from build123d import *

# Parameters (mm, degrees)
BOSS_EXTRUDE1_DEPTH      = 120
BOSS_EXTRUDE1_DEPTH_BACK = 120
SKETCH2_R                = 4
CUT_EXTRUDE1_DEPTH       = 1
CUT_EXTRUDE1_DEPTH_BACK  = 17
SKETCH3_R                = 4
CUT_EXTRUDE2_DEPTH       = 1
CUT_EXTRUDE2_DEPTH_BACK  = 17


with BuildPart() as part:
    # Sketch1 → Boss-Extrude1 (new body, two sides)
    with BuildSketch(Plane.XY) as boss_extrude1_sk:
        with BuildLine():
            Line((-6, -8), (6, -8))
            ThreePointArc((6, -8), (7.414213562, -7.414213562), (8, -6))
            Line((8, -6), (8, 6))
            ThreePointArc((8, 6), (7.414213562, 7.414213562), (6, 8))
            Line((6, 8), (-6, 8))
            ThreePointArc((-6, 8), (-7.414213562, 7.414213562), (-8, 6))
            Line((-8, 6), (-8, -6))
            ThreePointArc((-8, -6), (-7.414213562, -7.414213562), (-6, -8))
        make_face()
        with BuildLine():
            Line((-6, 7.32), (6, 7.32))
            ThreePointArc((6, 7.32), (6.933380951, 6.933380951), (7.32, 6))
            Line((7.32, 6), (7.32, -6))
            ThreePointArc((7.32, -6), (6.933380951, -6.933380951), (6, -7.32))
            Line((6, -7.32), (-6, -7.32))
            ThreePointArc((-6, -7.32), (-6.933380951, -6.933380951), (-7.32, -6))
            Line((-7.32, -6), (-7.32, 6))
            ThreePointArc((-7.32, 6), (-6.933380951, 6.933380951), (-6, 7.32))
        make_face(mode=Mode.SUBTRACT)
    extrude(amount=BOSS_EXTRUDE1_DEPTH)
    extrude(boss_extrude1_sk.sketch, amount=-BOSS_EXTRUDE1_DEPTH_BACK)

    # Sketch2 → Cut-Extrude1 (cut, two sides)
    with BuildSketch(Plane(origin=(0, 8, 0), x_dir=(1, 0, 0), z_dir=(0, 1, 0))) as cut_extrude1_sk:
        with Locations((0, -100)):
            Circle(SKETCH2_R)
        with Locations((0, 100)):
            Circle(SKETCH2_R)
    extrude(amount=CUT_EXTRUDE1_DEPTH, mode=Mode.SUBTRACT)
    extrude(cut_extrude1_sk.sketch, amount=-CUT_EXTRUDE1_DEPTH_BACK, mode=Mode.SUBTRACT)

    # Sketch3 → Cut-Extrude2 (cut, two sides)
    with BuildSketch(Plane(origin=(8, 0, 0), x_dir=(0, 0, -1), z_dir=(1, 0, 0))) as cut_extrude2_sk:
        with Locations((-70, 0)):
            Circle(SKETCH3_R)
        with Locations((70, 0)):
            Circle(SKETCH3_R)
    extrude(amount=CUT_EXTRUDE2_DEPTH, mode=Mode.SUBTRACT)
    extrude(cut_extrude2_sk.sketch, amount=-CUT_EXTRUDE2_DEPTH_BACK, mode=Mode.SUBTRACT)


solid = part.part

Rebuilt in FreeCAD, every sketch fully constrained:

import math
import FreeCAD as App
import Part
import Sketcher

doc = App.newDocument("Part")
body = doc.addObject("PartDesign::Body", "Body")

# Sketch on XY plane
sketch1 = body.newObject("Sketcher::SketchObject", "Sketch")
sketch1.AttachmentSupport = (doc.getObject("XY_Plane"), [""])
sketch1.MapMode = "FlatFace"
sketch1.addGeometry(Part.LineSegment(App.Vector(-6, -8, 0), App.Vector(6, -8, 0)), False)
sketch1.addGeometry(Part.ArcOfCircle(Part.Circle(App.Vector(6, -6, 0), App.Vector(0, 0, 1), 2), math.radians(-90), math.radians(0)), False)
sketch1.addGeometry(Part.LineSegment(App.Vector(8, -6, 0), App.Vector(8, 6, 0)), False)
sketch1.addGeometry(Part.ArcOfCircle(Part.Circle(App.Vector(6, 6, 0), App.Vector(0, 0, 1), 2), math.radians(0), math.radians(90)), False)
sketch1.addGeometry(Part.LineSegment(App.Vector(6, 8, 0), App.Vector(-6, 8, 0)), False)
sketch1.addGeometry(Part.ArcOfCircle(Part.Circle(App.Vector(-6, 6, 0), App.Vector(0, 0, 1), 2), math.radians(90), math.radians(180)), False)
sketch1.addGeometry(Part.LineSegment(App.Vector(-8, 6, 0), App.Vector(-8, -6, 0)), False)
sketch1.addGeometry(Part.ArcOfCircle(Part.Circle(App.Vector(-6, -6, 0), App.Vector(0, 0, 1), 2), math.radians(-180), math.radians(-90)), False)
sketch1.addGeometry(Part.ArcOfCircle(Part.Circle(App.Vector(-6, 6, 0), App.Vector(0, 0, 1), 1.32), math.radians(90), math.radians(180)), False)
sketch1.addGeometry(Part.LineSegment(App.Vector(-6, 7.32, 0), App.Vector(6, 7.32, 0)), False)
sketch1.addGeometry(Part.ArcOfCircle(Part.Circle(App.Vector(6, 6, 0), App.Vector(0, 0, 1), 1.32), math.radians(0), math.radians(90)), False)
sketch1.addGeometry(Part.LineSegment(App.Vector(7.32, 6, 0), App.Vector(7.32, -6, 0)), False)
sketch1.addGeometry(Part.ArcOfCircle(Part.Circle(App.Vector(6, -6, 0), App.Vector(0, 0, 1), 1.32), math.radians(-90), math.radians(0)), False)
sketch1.addGeometry(Part.LineSegment(App.Vector(6, -7.32, 0), App.Vector(-6, -7.32, 0)), False)
sketch1.addGeometry(Part.ArcOfCircle(Part.Circle(App.Vector(-6, -6, 0), App.Vector(0, 0, 1), 1.32), math.radians(-180), math.radians(-90)), False)
sketch1.addGeometry(Part.LineSegment(App.Vector(-7.32, -6, 0), App.Vector(-7.32, 6, 0)), False)
sketch1.addConstraint(Sketcher.Constraint("Tangent", 0, 2, 1, 1))
sketch1.addConstraint(Sketcher.Constraint("Tangent", 1, 2, 2, 1))
sketch1.addConstraint(Sketcher.Constraint("Tangent", 2, 2, 3, 1))
sketch1.addConstraint(Sketcher.Constraint("Tangent", 3, 2, 4, 1))
sketch1.addConstraint(Sketcher.Constraint("Tangent", 4, 2, 5, 1))
sketch1.addConstraint(Sketcher.Constraint("Tangent", 5, 2, 6, 1))
sketch1.addConstraint(Sketcher.Constraint("Tangent", 6, 2, 7, 1))
sketch1.addConstraint(Sketcher.Constraint("Tangent", 7, 2, 0, 1))
sketch1.addConstraint(Sketcher.Constraint("Tangent", 8, 1, 9, 1))
sketch1.addConstraint(Sketcher.Constraint("Tangent", 9, 2, 10, 2))
sketch1.addConstraint(Sketcher.Constraint("Tangent", 10, 1, 11, 1))
sketch1.addConstraint(Sketcher.Constraint("Tangent", 11, 2, 12, 2))
sketch1.addConstraint(Sketcher.Constraint("Tangent", 12, 1, 13, 1))
sketch1.addConstraint(Sketcher.Constraint("Tangent", 13, 2, 14, 2))
sketch1.addConstraint(Sketcher.Constraint("Tangent", 14, 1, 15, 1))
sketch1.addConstraint(Sketcher.Constraint("Tangent", 15, 2, 8, 2))
sketch1.addConstraint(Sketcher.Constraint("Horizontal", 0))
sketch1.addConstraint(Sketcher.Constraint("Vertical", 2))
sketch1.addConstraint(Sketcher.Constraint("Horizontal", 4))
sketch1.addConstraint(Sketcher.Constraint("Vertical", 6))
sketch1.addConstraint(Sketcher.Constraint("Horizontal", 9))
sketch1.addConstraint(Sketcher.Constraint("Vertical", 11))
sketch1.addConstraint(Sketcher.Constraint("Horizontal", 13))
sketch1.addConstraint(Sketcher.Constraint("Vertical", 15))
sketch1.addConstraint(Sketcher.Constraint("Coincident", 8, 3, 5, 3))
sketch1.addConstraint(Sketcher.Constraint("Coincident", 10, 3, 3, 3))
sketch1.addConstraint(Sketcher.Constraint("Coincident", 12, 3, 1, 3))
sketch1.addConstraint(Sketcher.Constraint("Equal", 1, 3))
sketch1.addConstraint(Sketcher.Constraint("Equal", 3, 5))
sketch1.addConstraint(Sketcher.Constraint("Equal", 5, 7))
sketch1.addConstraint(Sketcher.Constraint("Equal", 12, 14))
sketch1.addConstraint(Sketcher.Constraint("Symmetric", 1, 3, 5, 3, -1, 1))
sketch1.addConstraint(Sketcher.Constraint("Equal", 13, 2))
sketch1.addConstraint(Sketcher.Constraint("Radius", 1, 2.0))
sketch1.addConstraint(Sketcher.Constraint("DistanceX", 0, 1, 0, 2, 12.0))
sketch1.addConstraint(Sketcher.Constraint("Radius", 8, 1.32))
pad1 = body.newObject("PartDesign::Pad", "Pad")
pad1.Profile = sketch1
pad1.Type = "TwoLengths"
pad1.Length = 120
pad1.Length2 = 120

# Sketch on XZ plane
sketch2 = body.newObject("Sketcher::SketchObject", "Sketch001")
sketch2.AttachmentSupport = (doc.getObject("XZ_Plane"), [""])
sketch2.MapMode = "FlatFace"
sketch2.AttachmentOffset = App.Placement(App.Vector(0, 0, -8), App.Rotation())
sketch2.addGeometry(Part.Circle(App.Vector(0, 100, 0), App.Vector(0, 0, 1), 4), False)
sketch2.addGeometry(Part.Circle(App.Vector(0, -100, 0), App.Vector(0, 0, 1), 4), False)
sketch2.addConstraint(Sketcher.Constraint("Equal", 0, 1))
sketch2.addConstraint(Sketcher.Constraint("Symmetric", 0, 3, 1, 3, -1, 1))
sketch2.addConstraint(Sketcher.Constraint("PointOnObject", 0, 3, -2))
sketch2.addConstraint(Sketcher.Constraint("Diameter", 0, 8.0))
sketch2.addConstraint(Sketcher.Constraint("DistanceY", -1, 1, 0, 3, 100.0))
pocket1 = body.newObject("PartDesign::Pocket", "Pocket")
pocket1.Profile = sketch2
pocket1.Type = "ThroughAll"
pocket1.Midplane = True

# Sketch on YZ plane
sketch3 = body.newObject("Sketcher::SketchObject", "Sketch002")
sketch3.AttachmentSupport = (doc.getObject("YZ_Plane"), [""])
sketch3.MapMode = "FlatFace"
sketch3.AttachmentOffset = App.Placement(App.Vector(0, 0, 8), App.Rotation())
sketch3.addGeometry(Part.Circle(App.Vector(0, 70, 0), App.Vector(0, 0, 1), 4), False)
sketch3.addGeometry(Part.Circle(App.Vector(0, -70, 0), App.Vector(0, 0, 1), 4), False)
sketch3.addConstraint(Sketcher.Constraint("Equal", 0, 1))
sketch3.addConstraint(Sketcher.Constraint("Symmetric", 0, 3, 1, 3, -1, 1))
sketch3.addConstraint(Sketcher.Constraint("PointOnObject", 0, 3, -2))
sketch3.addConstraint(Sketcher.Constraint("Diameter", 0, 8.0))
sketch3.addConstraint(Sketcher.Constraint("DistanceY", -1, 1, 0, 3, 70.0))
pocket2 = body.newObject("PartDesign::Pocket", "Pocket001")
pocket2.Profile = sketch3
pocket2.Type = "ThroughAll"
pocket2.Midplane = True

doc.recompute()
